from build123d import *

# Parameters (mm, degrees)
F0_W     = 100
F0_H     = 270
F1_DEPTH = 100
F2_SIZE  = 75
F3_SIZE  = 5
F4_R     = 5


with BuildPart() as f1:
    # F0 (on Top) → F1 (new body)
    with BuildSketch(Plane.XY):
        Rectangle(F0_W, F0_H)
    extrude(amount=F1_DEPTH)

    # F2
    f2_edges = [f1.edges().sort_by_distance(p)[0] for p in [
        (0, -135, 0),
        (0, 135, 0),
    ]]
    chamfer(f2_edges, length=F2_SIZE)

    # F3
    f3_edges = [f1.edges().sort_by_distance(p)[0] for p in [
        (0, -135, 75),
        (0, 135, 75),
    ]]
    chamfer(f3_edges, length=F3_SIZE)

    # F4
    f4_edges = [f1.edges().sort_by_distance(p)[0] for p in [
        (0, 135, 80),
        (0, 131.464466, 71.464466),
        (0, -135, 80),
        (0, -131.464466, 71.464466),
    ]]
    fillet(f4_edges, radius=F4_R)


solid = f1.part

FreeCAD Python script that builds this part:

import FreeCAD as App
import Part
import Sketcher

V = App.Vector


def edges_at(feature, points):
    """Names of the edges that pass closest to the given points."""
    edges = feature.Shape.Edges
    near = lambda p: min(range(len(edges)), key=lambda i: edges[i].distToShape(Part.Vertex(*p))[0])
    return sorted({f"Edge{near(p) + 1}" for p in points})


def add_polygon(sketch, points):
    """Adds a closed chain of lines whose ends are joined by coincident constraints."""
    first, n = sketch.GeometryCount, len(points)
    for a, b in zip(points, points[1:] + points[:1]):
        sketch.addGeometry(Part.LineSegment(App.Vector(*a, 0), App.Vector(*b, 0)), False)
    for i in range(n):
        sketch.addConstraint(Sketcher.Constraint("Coincident", first + i, 2, first + (i + 1) % n, 1))

doc = App.newDocument("Part")
body = doc.addObject("PartDesign::Body", "Body")

sketch1 = body.newObject("Sketcher::SketchObject", "Sketch")
sketch1.AttachmentSupport = (doc.getObject("XY_Plane"), [""])
sketch1.MapMode = "FlatFace"
add_polygon(sketch1, [(-50, 135), (-50, -135), (50, -135), (50, 135)])
sketch1.addConstraint(Sketcher.Constraint("Vertical", 0))
sketch1.addConstraint(Sketcher.Constraint("Horizontal", 1))
sketch1.addConstraint(Sketcher.Constraint("Vertical", 2))
sketch1.addConstraint(Sketcher.Constraint("Horizontal", 3))
sketch1.addConstraint(Sketcher.Constraint("Symmetric", 0, 2, 2, 2, -1, 1))
sketch1.addConstraint(Sketcher.Constraint("DistanceX", 1, 1, 1, 2, 100.0))
sketch1.addConstraint(Sketcher.Constraint("DistanceY", 0, 2, 0, 1, 270.0))
pad1 = body.newObject("PartDesign::Pad", "Pad")
pad1.Profile = sketch1
pad1.Length = 100
doc.recompute()

chamfer = body.newObject("PartDesign::Chamfer", "Chamfer")
chamfer.Base = (pad1, edges_at(pad1, [(0, -135, 0), (0, 135, 0)]))
chamfer.Size = 75
doc.recompute()

chamfer2 = body.newObject("PartDesign::Chamfer", "Chamfer001")
chamfer2.Base = (chamfer, edges_at(chamfer, [(0, -135, 75), (0, 135, 75)]))
chamfer2.Size = 5
doc.recompute()

fillet = body.newObject("PartDesign::Fillet", "Fillet")
fillet.Base = (chamfer2, edges_at(chamfer2, [
    (0, 135, 80),
    (0, 131.464, 71.464),
    (0, -135, 80),
    (0, -131.464, 71.464),
]))
fillet.Radius = 5

doc.recompute()
